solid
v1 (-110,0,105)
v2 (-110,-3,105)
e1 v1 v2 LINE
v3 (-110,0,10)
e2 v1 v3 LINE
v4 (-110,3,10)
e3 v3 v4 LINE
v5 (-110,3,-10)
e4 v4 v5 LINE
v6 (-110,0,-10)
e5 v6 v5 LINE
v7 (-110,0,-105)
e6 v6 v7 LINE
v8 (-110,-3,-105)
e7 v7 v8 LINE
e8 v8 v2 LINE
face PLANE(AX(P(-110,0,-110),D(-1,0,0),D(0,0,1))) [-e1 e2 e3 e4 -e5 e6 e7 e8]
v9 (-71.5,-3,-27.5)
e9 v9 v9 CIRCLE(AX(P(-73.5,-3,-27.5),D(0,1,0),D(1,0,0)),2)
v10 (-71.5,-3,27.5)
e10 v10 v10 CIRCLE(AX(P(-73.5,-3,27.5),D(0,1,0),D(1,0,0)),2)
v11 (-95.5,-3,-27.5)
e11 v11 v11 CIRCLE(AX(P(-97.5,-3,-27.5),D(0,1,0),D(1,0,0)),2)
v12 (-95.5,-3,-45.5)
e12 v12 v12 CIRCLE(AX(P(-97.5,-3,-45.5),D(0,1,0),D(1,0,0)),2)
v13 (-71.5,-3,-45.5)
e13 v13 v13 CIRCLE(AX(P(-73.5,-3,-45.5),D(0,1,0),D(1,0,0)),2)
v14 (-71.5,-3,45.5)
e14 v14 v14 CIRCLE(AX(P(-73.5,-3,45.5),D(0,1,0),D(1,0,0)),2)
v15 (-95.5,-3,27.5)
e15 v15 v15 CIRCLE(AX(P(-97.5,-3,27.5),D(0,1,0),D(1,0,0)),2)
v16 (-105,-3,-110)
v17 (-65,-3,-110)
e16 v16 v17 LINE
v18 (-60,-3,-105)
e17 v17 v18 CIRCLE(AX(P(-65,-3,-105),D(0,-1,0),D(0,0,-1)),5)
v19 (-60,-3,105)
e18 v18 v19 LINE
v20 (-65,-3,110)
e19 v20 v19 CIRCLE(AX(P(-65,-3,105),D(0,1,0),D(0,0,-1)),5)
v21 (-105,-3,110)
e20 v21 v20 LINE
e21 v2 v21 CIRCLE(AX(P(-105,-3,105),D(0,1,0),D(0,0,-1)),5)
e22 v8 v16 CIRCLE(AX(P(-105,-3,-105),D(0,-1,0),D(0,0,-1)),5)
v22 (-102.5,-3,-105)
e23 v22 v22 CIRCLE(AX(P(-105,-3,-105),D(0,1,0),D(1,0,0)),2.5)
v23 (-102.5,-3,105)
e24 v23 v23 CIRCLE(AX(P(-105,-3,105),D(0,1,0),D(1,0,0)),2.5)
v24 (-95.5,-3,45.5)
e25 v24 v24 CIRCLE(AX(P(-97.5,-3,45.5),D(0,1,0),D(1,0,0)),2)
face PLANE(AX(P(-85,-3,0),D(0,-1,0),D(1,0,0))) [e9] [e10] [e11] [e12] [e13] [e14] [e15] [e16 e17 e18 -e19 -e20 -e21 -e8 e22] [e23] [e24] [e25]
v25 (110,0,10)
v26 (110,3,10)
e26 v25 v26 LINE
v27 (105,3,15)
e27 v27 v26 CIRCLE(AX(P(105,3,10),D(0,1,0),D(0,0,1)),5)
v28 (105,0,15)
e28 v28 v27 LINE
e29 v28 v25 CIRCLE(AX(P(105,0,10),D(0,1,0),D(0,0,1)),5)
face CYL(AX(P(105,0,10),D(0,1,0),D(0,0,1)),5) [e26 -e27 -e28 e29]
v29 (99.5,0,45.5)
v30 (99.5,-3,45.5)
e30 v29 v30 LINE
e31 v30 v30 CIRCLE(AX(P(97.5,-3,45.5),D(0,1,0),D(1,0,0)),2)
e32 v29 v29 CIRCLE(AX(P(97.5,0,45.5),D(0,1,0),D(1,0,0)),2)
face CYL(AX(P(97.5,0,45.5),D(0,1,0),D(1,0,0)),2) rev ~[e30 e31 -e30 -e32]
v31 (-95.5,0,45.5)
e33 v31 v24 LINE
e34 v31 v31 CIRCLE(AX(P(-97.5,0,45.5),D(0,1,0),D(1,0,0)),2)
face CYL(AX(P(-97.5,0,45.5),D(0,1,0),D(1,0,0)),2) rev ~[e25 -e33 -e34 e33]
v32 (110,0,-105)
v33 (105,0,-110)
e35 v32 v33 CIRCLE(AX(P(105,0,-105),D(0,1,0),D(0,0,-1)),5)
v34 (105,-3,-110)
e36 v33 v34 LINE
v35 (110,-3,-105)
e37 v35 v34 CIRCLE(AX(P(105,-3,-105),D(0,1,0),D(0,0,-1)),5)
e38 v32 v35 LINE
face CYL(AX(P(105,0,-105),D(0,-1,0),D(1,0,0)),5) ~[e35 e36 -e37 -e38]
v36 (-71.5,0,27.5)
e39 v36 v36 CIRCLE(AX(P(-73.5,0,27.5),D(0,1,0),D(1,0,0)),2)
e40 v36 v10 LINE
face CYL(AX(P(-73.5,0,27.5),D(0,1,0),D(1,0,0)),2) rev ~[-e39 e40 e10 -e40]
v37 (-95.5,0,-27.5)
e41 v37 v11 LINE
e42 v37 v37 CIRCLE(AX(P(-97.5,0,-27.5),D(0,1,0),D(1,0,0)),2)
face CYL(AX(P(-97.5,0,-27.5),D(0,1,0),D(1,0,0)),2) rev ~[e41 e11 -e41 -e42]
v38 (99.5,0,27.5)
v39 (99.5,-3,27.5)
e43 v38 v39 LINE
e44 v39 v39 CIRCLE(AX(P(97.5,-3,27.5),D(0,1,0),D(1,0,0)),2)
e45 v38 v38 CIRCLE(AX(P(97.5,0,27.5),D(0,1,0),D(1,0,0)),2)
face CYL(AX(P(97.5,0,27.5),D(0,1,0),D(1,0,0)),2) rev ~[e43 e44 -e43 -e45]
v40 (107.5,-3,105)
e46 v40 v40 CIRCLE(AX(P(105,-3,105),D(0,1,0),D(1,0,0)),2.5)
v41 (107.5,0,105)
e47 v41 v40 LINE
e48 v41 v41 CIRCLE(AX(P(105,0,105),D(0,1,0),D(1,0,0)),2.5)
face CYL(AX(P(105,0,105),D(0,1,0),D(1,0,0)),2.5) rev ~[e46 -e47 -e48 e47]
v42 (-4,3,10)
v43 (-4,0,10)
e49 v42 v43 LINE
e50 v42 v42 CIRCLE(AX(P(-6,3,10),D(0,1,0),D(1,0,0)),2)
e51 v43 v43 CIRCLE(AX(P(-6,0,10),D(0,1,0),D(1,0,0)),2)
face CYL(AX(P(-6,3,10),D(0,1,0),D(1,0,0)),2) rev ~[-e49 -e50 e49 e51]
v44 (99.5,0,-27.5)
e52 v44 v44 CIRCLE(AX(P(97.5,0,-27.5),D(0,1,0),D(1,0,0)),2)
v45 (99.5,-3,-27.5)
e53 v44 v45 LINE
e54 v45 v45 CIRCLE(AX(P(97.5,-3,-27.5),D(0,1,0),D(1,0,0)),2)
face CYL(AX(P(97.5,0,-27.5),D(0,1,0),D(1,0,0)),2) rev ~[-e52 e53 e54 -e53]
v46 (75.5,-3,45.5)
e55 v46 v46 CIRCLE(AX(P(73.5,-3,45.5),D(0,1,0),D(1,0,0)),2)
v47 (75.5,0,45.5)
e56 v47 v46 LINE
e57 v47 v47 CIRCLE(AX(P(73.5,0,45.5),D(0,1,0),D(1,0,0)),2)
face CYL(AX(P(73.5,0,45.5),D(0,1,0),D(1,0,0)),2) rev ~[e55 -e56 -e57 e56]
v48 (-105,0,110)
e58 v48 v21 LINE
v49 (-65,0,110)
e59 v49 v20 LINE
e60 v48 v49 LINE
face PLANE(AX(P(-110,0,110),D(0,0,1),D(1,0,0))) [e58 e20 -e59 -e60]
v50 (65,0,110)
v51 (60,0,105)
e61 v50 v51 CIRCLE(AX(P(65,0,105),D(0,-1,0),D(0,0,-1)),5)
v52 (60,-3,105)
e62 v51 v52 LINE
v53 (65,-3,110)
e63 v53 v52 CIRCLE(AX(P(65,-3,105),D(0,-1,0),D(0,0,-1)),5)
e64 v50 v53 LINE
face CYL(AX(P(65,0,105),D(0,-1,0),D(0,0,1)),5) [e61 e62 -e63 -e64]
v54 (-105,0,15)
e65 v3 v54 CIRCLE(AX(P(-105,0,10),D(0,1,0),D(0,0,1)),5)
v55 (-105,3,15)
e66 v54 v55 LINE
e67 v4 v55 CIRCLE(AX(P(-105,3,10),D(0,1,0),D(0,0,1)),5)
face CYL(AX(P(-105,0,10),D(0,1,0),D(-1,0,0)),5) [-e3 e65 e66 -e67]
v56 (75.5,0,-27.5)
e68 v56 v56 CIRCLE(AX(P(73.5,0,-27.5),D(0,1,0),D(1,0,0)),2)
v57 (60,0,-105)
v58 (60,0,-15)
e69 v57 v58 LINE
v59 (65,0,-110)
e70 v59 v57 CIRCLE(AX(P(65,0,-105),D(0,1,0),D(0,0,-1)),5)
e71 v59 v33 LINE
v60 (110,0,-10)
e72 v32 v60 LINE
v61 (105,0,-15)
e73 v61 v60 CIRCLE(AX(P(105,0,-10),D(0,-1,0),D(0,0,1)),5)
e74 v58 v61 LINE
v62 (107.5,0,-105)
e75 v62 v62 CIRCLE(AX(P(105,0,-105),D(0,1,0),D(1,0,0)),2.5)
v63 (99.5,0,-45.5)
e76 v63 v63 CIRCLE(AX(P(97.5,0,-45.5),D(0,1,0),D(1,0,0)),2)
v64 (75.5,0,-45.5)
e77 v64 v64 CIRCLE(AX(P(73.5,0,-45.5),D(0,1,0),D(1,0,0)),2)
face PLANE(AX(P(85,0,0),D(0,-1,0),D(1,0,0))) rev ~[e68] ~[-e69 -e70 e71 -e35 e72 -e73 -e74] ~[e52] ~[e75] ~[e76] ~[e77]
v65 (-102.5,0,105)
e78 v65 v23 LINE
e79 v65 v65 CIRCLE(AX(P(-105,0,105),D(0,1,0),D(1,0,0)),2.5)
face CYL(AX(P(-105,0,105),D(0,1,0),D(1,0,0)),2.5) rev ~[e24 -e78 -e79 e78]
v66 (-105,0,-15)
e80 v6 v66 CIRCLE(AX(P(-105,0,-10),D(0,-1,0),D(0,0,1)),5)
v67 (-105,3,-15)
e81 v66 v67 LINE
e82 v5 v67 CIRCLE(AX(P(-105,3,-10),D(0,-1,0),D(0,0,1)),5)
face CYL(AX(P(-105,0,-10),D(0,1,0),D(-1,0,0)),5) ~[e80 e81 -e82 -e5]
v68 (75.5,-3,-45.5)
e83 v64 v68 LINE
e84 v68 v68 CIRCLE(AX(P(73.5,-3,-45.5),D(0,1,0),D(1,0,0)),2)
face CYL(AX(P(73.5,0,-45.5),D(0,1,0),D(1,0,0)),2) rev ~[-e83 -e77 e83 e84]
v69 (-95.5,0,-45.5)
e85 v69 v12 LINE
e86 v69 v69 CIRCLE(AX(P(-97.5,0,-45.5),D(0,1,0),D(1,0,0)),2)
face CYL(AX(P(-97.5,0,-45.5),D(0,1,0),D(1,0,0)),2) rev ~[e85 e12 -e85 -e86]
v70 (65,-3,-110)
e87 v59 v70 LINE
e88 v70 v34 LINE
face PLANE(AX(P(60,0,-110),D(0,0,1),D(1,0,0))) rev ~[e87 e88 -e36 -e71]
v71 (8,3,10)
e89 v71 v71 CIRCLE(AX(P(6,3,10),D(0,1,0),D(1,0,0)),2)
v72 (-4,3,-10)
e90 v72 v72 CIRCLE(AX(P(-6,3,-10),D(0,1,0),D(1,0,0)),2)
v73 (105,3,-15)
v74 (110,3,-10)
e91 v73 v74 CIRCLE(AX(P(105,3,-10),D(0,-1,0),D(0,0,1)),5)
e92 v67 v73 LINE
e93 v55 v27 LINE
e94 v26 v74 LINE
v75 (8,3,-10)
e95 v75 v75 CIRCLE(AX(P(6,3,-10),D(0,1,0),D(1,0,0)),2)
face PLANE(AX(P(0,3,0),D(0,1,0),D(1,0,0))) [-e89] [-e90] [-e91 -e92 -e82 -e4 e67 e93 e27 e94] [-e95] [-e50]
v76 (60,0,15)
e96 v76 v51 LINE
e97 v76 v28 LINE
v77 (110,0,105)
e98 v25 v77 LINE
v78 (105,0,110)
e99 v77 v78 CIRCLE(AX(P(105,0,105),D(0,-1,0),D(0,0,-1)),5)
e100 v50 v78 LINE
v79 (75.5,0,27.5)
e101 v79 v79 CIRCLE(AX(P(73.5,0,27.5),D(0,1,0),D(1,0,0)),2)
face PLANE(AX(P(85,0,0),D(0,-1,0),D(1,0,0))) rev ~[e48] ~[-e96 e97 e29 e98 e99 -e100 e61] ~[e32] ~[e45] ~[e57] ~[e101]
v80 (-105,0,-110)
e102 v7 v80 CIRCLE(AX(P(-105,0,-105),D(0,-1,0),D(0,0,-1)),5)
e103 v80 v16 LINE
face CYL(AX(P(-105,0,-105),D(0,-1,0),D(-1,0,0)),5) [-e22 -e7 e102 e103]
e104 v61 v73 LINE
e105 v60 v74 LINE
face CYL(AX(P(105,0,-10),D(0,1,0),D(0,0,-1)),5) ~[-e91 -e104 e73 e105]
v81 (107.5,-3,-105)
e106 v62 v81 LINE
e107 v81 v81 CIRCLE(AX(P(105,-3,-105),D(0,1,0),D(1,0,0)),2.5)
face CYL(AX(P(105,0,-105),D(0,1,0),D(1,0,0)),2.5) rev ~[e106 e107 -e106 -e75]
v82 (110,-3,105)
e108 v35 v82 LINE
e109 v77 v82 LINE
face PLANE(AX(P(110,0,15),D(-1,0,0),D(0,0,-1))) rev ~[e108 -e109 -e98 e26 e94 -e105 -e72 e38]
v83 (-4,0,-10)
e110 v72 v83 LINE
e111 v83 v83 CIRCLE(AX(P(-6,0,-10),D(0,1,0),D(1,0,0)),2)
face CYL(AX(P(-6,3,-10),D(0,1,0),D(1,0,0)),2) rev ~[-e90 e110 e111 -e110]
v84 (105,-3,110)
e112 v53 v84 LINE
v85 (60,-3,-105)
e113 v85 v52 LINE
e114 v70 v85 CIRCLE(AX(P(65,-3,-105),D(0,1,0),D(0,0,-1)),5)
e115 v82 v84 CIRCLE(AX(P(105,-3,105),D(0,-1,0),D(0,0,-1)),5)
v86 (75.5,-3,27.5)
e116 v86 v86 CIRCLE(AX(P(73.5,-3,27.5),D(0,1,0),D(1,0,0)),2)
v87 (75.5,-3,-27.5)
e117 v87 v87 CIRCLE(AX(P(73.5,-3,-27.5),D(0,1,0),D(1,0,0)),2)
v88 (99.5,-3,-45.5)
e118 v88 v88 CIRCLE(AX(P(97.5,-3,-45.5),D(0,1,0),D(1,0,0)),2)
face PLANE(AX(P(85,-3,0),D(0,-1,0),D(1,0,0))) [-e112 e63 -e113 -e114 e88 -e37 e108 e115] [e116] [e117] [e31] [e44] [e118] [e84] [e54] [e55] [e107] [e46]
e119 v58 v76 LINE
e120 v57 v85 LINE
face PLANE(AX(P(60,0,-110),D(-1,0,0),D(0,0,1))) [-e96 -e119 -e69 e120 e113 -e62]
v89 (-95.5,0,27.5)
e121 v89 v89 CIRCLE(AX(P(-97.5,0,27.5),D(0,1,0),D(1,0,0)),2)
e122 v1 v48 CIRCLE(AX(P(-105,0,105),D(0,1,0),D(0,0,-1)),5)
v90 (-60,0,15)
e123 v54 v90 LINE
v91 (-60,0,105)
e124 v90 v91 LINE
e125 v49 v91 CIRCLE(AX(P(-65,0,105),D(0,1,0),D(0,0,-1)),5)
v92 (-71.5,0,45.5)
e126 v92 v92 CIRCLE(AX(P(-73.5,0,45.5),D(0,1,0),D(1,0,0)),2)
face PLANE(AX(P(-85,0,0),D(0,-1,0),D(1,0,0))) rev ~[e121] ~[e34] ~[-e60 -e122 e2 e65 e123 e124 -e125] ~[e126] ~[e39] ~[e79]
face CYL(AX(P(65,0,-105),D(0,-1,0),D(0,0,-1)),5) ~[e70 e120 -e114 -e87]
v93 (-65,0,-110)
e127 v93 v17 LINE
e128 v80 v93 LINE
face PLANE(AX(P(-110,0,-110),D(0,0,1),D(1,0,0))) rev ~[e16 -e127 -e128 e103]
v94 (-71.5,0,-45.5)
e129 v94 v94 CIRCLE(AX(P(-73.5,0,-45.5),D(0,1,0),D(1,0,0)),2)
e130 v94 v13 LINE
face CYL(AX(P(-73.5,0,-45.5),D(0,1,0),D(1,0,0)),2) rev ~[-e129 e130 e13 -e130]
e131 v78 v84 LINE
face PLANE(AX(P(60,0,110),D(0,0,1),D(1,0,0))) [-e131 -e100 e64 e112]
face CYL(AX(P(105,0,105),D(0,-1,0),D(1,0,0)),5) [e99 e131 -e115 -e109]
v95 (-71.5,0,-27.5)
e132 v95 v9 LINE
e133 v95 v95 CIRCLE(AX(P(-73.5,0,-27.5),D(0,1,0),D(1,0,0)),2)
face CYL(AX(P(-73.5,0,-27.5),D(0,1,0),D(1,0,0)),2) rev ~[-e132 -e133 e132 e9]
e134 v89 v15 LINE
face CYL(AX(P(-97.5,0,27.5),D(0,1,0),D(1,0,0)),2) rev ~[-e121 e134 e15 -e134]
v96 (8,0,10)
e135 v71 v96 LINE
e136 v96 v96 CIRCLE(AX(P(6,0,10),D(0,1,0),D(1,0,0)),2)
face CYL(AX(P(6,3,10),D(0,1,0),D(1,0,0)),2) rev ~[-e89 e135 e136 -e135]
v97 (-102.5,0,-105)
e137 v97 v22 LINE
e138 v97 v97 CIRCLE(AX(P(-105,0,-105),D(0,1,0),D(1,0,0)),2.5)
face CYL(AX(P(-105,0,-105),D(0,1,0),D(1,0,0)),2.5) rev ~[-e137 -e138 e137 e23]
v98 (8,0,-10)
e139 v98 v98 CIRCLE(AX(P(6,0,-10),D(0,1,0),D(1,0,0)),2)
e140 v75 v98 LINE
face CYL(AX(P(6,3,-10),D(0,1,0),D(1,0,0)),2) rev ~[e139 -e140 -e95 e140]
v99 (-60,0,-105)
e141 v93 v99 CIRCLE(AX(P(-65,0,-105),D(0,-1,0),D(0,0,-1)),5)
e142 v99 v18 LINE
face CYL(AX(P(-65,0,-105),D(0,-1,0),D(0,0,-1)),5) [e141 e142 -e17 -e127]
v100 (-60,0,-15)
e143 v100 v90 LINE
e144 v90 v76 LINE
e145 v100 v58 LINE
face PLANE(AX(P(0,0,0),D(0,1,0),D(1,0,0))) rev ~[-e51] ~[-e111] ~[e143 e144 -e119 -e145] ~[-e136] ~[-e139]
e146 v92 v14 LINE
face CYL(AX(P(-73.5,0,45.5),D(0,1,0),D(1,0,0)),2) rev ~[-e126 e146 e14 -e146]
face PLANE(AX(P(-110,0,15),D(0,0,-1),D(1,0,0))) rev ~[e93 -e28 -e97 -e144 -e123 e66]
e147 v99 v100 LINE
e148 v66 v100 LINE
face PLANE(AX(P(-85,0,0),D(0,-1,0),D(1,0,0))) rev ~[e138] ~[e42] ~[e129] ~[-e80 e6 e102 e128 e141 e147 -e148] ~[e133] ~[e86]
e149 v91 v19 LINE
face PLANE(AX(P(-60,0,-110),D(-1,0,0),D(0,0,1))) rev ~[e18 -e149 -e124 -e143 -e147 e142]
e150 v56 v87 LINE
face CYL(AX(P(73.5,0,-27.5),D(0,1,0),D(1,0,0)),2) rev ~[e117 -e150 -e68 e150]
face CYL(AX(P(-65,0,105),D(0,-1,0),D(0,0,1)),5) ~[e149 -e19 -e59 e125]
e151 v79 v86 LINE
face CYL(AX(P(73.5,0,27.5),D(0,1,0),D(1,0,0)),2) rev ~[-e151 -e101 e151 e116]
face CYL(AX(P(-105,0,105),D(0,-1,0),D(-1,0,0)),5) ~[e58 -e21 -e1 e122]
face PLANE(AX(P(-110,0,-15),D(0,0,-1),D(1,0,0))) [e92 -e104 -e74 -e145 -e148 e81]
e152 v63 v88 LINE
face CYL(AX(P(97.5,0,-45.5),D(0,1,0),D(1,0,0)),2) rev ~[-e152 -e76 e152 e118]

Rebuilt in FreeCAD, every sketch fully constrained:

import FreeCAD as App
import Part
import Sketcher


def edges_at(feature, points):
    """Names of the edges that pass closest to the given points."""
    edges = feature.Shape.Edges
    near = lambda p: min(range(len(edges)), key=lambda i: edges[i].distToShape(Part.Vertex(*p))[0])
    return sorted({f"Edge{near(p) + 1}" for p in points})


def add_polygon(sketch, points):
    """Adds a closed chain of lines whose ends are joined by coincident constraints."""
    first, n = sketch.GeometryCount, len(points)
    for a, b in zip(points, points[1:] + points[:1]):
        sketch.addGeometry(Part.LineSegment(App.Vector(*a, 0), App.Vector(*b, 0)), False)
    for i in range(n):
        sketch.addConstraint(Sketcher.Constraint("Coincident", first + i, 2, first + (i + 1) % n, 1))

doc = App.newDocument("Part")
body = doc.addObject("PartDesign::Body", "Body")

# Sketch on XZ plane
sketch1 = body.newObject("Sketcher::SketchObject", "Sketch")
sketch1.AttachmentSupport = (doc.getObject("XZ_Plane"), [""])
sketch1.MapMode = "FlatFace"
add_polygon(sketch1, [(-110, -15), (-110, 15), (110, 15), (110, -15)])  # lines 0-3
sketch1.addConstraint(Sketcher.Constraint("Vertical", 0))
sketch1.addConstraint(Sketcher.Constraint("Horizontal", 1))
sketch1.addConstraint(Sketcher.Constraint("Vertical", 2))
sketch1.addConstraint(Sketcher.Constraint("Horizontal", 3))
sketch1.addConstraint(Sketcher.Constraint("Symmetric", 0, 2, 2, 2, -1, 1))
sketch1.addConstraint(Sketcher.Constraint("DistanceX", 1, 1, 1, 2, 220.0))
sketch1.addConstraint(Sketcher.Constraint("DistanceY", 0, 1, 0, 2, 30.0))
pad1 = body.newObject("PartDesign::Pad", "Pad")
pad1.Profile = sketch1
pad1.Length = 3
pad1.Reversed = True

# Sketch on XZ plane
sketch2 = body.newObject("Sketcher::SketchObject", "Sketch001")
sketch2.AttachmentSupport = (doc.getObject("XZ_Plane"), [""])
sketch2.MapMode = "FlatFace"
add_polygon(sketch2, [(-110, 110), (-110, -110), (-60, -110), (-60, 110)])  # lines 0-3
add_polygon(sketch2, [(60, 110), (60, -110), (110, -110), (110, 110)])  # lines 4-7
sketch2.addConstraint(Sketcher.Constraint("Vertical", 0))
sketch2.addConstraint(Sketcher.Constraint("Horizontal", 1))
sketch2.addConstraint(Sketcher.Constraint("Vertical", 2))
sketch2.addConstraint(Sketcher.Constraint("Horizontal", 3))
sketch2.addConstraint(Sketcher.Constraint("Vertical", 4))
sketch2.addConstraint(Sketcher.Constraint("Horizontal", 5))
sketch2.addConstraint(Sketcher.Constraint("Vertical", 6))
sketch2.addConstraint(Sketcher.Constraint("Horizontal", 7))
sketch2.addConstraint(Sketcher.Constraint("Symmetric", 2, 2, 4, 2, -1, 1))
sketch2.addConstraint(Sketcher.Constraint("Symmetric", 0, 2, 6, 2, -1, 1))
sketch2.addConstraint(Sketcher.Constraint("Horizontal", 1, 2, 4, 2))
sketch2.addConstraint(Sketcher.Constraint("DistanceX", 1, 1, 1, 2, 50.0))
sketch2.addConstraint(Sketcher.Constraint("DistanceY", 0, 2, 0, 1, 220.0))
sketch2.addConstraint(Sketcher.Constraint("DistanceX", 0, 2, -1, 1, 110.0))
pad2 = body.newObject("PartDesign::Pad", "Pad001")
pad2.Profile = sketch2
pad2.Length = 3

# Sketch on XZ plane
sketch3 = body.newObject("Sketcher::SketchObject", "Sketch002")
sketch3.AttachmentSupport = (doc.getObject("XZ_Plane"), [""])
sketch3.MapMode = "FlatFace"
sketch3.addGeometry(Part.Circle(App.Vector(-105, -105, 0), App.Vector(0, 0, 1), 2.5), False)
sketch3.addGeometry(Part.Circle(App.Vector(105, -105, 0), App.Vector(0, 0, 1), 2.5), False)
sketch3.addGeometry(Part.Circle(App.Vector(105, 105, 0), App.Vector(0, 0, 1), 2.5), False)
sketch3.addGeometry(Part.Circle(App.Vector(-105, 105, 0), App.Vector(0, 0, 1), 2.5), False)
sketch3.addConstraint(Sketcher.Constraint("Equal", 0, 1))
sketch3.addConstraint(Sketcher.Constraint("Equal", 1, 2))
sketch3.addConstraint(Sketcher.Constraint("Equal", 2, 3))
sketch3.addConstraint(Sketcher.Constraint("Symmetric", 0, 3, 2, 3, -1, 1))
sketch3.addConstraint(Sketcher.Constraint("Symmetric", 1, 3, 3, 3, -1, 1))
sketch3.addConstraint(Sketcher.Constraint("Symmetric", 0, 3, 1, 3, -2))
sketch3.addConstraint(Sketcher.Constraint("Diameter", 0, 5.0))
sketch3.addConstraint(Sketcher.Constraint("DistanceX", 0, 3, -1, 1, 105.0))
sketch3.addConstraint(Sketcher.Constraint("DistanceY", 0, 3, -1, 1, 105.0))
pocket1 = body.newObject("PartDesign::Pocket", "Pocket")
pocket1.Profile = sketch3
pocket1.Length = 3
pocket1.Reversed = True
doc.recompute()

fillet = body.newObject("PartDesign::Fillet", "Fillet")
fillet.Base = (pocket1, edges_at(pocket1, [
    (-60, -1.5, -110),
    (-60, -1.5, 110),
    (-110, -1.5, 110),
    (-110, -1.5, -110),
    (110, -1.5, -110),
    (110, -1.5, 110),
    (60, -1.5, 110),
    (60, -1.5, -110),
    (110, 1.5, 15),
    (-110, 1.5, 15),
    (-110, 1.5, -15),
    (110, 1.5, -15),
]))
fillet.Radius = 5

# Sketch on XZ plane
sketch4 = body.newObject("Sketcher::SketchObject", "Sketch003")
sketch4.AttachmentSupport = (doc.getObject("XZ_Plane"), [""])
sketch4.MapMode = "FlatFace"
sketch4.addGeometry(Part.Circle(App.Vector(-97.5, -27.5, 0), App.Vector(0, 0, 1), 2), False)
sketch4.addConstraint(Sketcher.Constraint("Diameter", 0, 4.0))
sketch4.addConstraint(Sketcher.Constraint("DistanceX", 0, 3, -1, 1, 97.5))
sketch4.addConstraint(Sketcher.Constraint("DistanceY", 0, 3, -1, 1, 27.5))
pocket2 = body.newObject("PartDesign::Pocket", "Pocket001")
pocket2.Profile = sketch4
pocket2.Type = "UpToFirst"
pocket2.Reversed = True

# Sketch on XZ plane
sketch5 = body.newObject("Sketcher::SketchObject", "Sketch004")
sketch5.AttachmentSupport = (doc.getObject("XZ_Plane"), [""])
sketch5.MapMode = "FlatFace"
sketch5.addGeometry(Part.Circle(App.Vector(-73.5, -27.5, 0), App.Vector(0, 0, 1), 2), False)
sketch5.addConstraint(Sketcher.Constraint("Diameter", 0, 4.0))
sketch5.addConstraint(Sketcher.Constraint("DistanceX", 0, 3, -1, 1, 73.5))
sketch5.addConstraint(Sketcher.Constraint("DistanceY", 0, 3, -1, 1, 27.5))
pocket3 = body.newObject("PartDesign::Pocket", "Pocket002")
pocket3.Profile = sketch5
pocket3.Type = "UpToFirst"
pocket3.Reversed = True

# Sketch on XZ plane
sketch6 = body.newObject("Sketcher::SketchObject", "Sketch005")
sketch6.AttachmentSupport = (doc.getObject("XZ_Plane"), [""])
sketch6.MapMode = "FlatFace"
sketch6.addGeometry(Part.Circle(App.Vector(-73.5, -45.5, 0), App.Vector(0, 0, 1), 2), False)
sketch6.addConstraint(Sketcher.Constraint("Diameter", 0, 4.0))
sketch6.addConstraint(Sketcher.Constraint("DistanceX", 0, 3, -1, 1, 73.5))
sketch6.addConstraint(Sketcher.Constraint("DistanceY", 0, 3, -1, 1, 45.5))
pocket4 = body.newObject("PartDesign::Pocket", "Pocket003")
pocket4.Profile = sketch6
pocket4.Type = "UpToFirst"
pocket4.Reversed = True

# Sketch on XZ plane
sketch7 = body.newObject("Sketcher::SketchObject", "Sketch006")
sketch7.AttachmentSupport = (doc.getObject("XZ_Plane"), [""])
sketch7.MapMode = "FlatFace"
sketch7.addGeometry(Part.Circle(App.Vector(-97.5, -45.5, 0), App.Vector(0, 0, 1), 2), False)
sketch7.addConstraint(Sketcher.Constraint("Diameter", 0, 4.0))
sketch7.addConstraint(Sketcher.Constraint("DistanceX", 0, 3, -1, 1, 97.5))
sketch7.addConstraint(Sketcher.Constraint("DistanceY", 0, 3, -1, 1, 45.5))
pocket5 = body.newObject("PartDesign::Pocket", "Pocket004")
pocket5.Profile = sketch7
pocket5.Type = "UpToFirst"
pocket5.Reversed = True

# Sketch on XZ plane
sketch8 = body.newObject("Sketcher::SketchObject", "Sketch007")
sketch8.AttachmentSupport = (doc.getObject("XZ_Plane"), [""])
sketch8.MapMode = "FlatFace"
sketch8.addGeometry(Part.Circle(App.Vector(97.5, -45.5, 0), App.Vector(0, 0, 1), 2), False)
sketch8.addConstraint(Sketcher.Constraint("Diameter", 0, 4.0))
sketch8.addConstraint(Sketcher.Constraint("DistanceX", -1, 1, 0, 3, 97.5))
sketch8.addConstraint(Sketcher.Constraint("DistanceY", 0, 3, -1, 1, 45.5))
pocket6 = body.newObject("PartDesign::Pocket", "Pocket005")
pocket6.Profile = sketch8
pocket6.Type = "UpToFirst"
pocket6.Reversed = True

# Sketch on XZ plane
sketch9 = body.newObject("Sketcher::SketchObject", "Sketch008")
sketch9.AttachmentSupport = (doc.getObject("XZ_Plane"), [""])
sketch9.MapMode = "FlatFace"
sketch9.addGeometry(Part.Circle(App.Vector(73.5, -45.5, 0), App.Vector(0, 0, 1), 2), False)
sketch9.addConstraint(Sketcher.Constraint("Diameter", 0, 4.0))
sketch9.addConstraint(Sketcher.Constraint("DistanceX", -1, 1, 0, 3, 73.5))
sketch9.addConstraint(Sketcher.Constraint("DistanceY", 0, 3, -1, 1, 45.5))
pocket7 = body.newObject("PartDesign::Pocket", "Pocket006")
pocket7.Profile = sketch9
pocket7.Type = "UpToFirst"
pocket7.Reversed = True

# Sketch on XZ plane
sketch10 = body.newObject("Sketcher::SketchObject", "Sketch009")
sketch10.AttachmentSupport = (doc.getObject("XZ_Plane"), [""])
sketch10.MapMode = "FlatFace"
sketch10.addGeometry(Part.Circle(App.Vector(73.5, -27.5, 0), App.Vector(0, 0, 1), 2), False)
sketch10.addConstraint(Sketcher.Constraint("Diameter", 0, 4.0))
sketch10.addConstraint(Sketcher.Constraint("DistanceX", -1, 1, 0, 3, 73.5))
sketch10.addConstraint(Sketcher.Constraint("DistanceY", 0, 3, -1, 1, 27.5))
pocket8 = body.newObject("PartDesign::Pocket", "Pocket007")
pocket8.Profile = sketch10
pocket8.Type = "UpToFirst"
pocket8.Reversed = True

# Sketch on XZ plane
sketch11 = body.newObject("Sketcher::SketchObject", "Sketch010")
sketch11.AttachmentSupport = (doc.getObject("XZ_Plane"), [""])
sketch11.MapMode = "FlatFace"
sketch11.addGeometry(Part.Circle(App.Vector(97.5, -27.5, 0), App.Vector(0, 0, 1), 2), False)
sketch11.addConstraint(Sketcher.Constraint("Diameter", 0, 4.0))
sketch11.addConstraint(Sketcher.Constraint("DistanceX", -1, 1, 0, 3, 97.5))
sketch11.addConstraint(Sketcher.Constraint("DistanceY", 0, 3, -1, 1, 27.5))
pocket9 = body.newObject("PartDesign::Pocket", "Pocket008")
pocket9.Profile = sketch11
pocket9.Type = "UpToFirst"
pocket9.Reversed = True

# Sketch on XZ plane
sketch12 = body.newObject("Sketcher::SketchObject", "Sketch011")
sketch12.AttachmentSupport = (doc.getObject("XZ_Plane"), [""])
sketch12.MapMode = "FlatFace"
sketch12.addGeometry(Part.Circle(App.Vector(97.5, 27.5, 0), App.Vector(0, 0, 1), 2), False)
sketch12.addConstraint(Sketcher.Constraint("Diameter", 0, 4.0))
sketch12.addConstraint(Sketcher.Constraint("DistanceX", -1, 1, 0, 3, 97.5))
sketch12.addConstraint(Sketcher.Constraint("DistanceY", -1, 1, 0, 3, 27.5))
pocket10 = body.newObject("PartDesign::Pocket", "Pocket009")
pocket10.Profile = sketch12
pocket10.Type = "UpToFirst"
pocket10.Reversed = True

# Sketch on XZ plane
sketch13 = body.newObject("Sketcher::SketchObject", "Sketch012")
sketch13.AttachmentSupport = (doc.getObject("XZ_Plane"), [""])
sketch13.MapMode = "FlatFace"
sketch13.addGeometry(Part.Circle(App.Vector(73.5, 27.5, 0), App.Vector(0, 0, 1), 2), False)
sketch13.addConstraint(Sketcher.Constraint("Diameter", 0, 4.0))
sketch13.addConstraint(Sketcher.Constraint("DistanceX", -1, 1, 0, 3, 73.5))
sketch13.addConstraint(Sketcher.Constraint("DistanceY", -1, 1, 0, 3, 27.5))
pocket11 = body.newObject("PartDesign::Pocket", "Pocket010")
pocket11.Profile = sketch13
pocket11.Type = "UpToFirst"
pocket11.Reversed = True

# Sketch on XZ plane
sketch14 = body.newObject("Sketcher::SketchObject", "Sketch013")
sketch14.AttachmentSupport = (doc.getObject("XZ_Plane"), [""])
sketch14.MapMode = "FlatFace"
sketch14.addGeometry(Part.Circle(App.Vector(73.5, 45.5, 0), App.Vector(0, 0, 1), 2), False)
sketch14.addConstraint(Sketcher.Constraint("Diameter", 0, 4.0))
sketch14.addConstraint(Sketcher.Constraint("DistanceX", -1, 1, 0, 3, 73.5))
sketch14.addConstraint(Sketcher.Constraint("DistanceY", -1, 1, 0, 3, 45.5))
pocket12 = body.newObject("PartDesign::Pocket", "Pocket011")
pocket12.Profile = sketch14
pocket12.Type = "UpToFirst"
pocket12.Reversed = True

# Sketch on XZ plane
sketch15 = body.newObject("Sketcher::SketchObject", "Sketch014")
sketch15.AttachmentSupport = (doc.getObject("XZ_Plane"), [""])
sketch15.MapMode = "FlatFace"
sketch15.addGeometry(Part.Circle(App.Vector(97.5, 45.5, 0), App.Vector(0, 0, 1), 2), False)
sketch15.addConstraint(Sketcher.Constraint("Diameter", 0, 4.0))
sketch15.addConstraint(Sketcher.Constraint("DistanceX", -1, 1, 0, 3, 97.5))
sketch15.addConstraint(Sketcher.Constraint("DistanceY", -1, 1, 0, 3, 45.5))
pocket13 = body.newObject("PartDesign::Pocket", "Pocket012")
pocket13.Profile = sketch15
pocket13.Type = "UpToFirst"
pocket13.Reversed = True

# Sketch on XZ plane
sketch16 = body.newObject("Sketcher::SketchObject", "Sketch015")
sketch16.AttachmentSupport = (doc.getObject("XZ_Plane"), [""])
sketch16.MapMode = "FlatFace"
sketch16.addGeometry(Part.Circle(App.Vector(-97.5, 45.5, 0), App.Vector(0, 0, 1), 2), False)
sketch16.addConstraint(Sketcher.Constraint("Diameter", 0, 4.0))
sketch16.addConstraint(Sketcher.Constraint("DistanceX", 0, 3, -1, 1, 97.5))
sketch16.addConstraint(Sketcher.Constraint("DistanceY", -1, 1, 0, 3, 45.5))
pocket14 = body.newObject("PartDesign::Pocket", "Pocket013")
pocket14.Profile = sketch16
pocket14.Type = "UpToFirst"
pocket14.Reversed = True

# Sketch on XZ plane
sketch17 = body.newObject("Sketcher::SketchObject", "Sketch016")
sketch17.AttachmentSupport = (doc.getObject("XZ_Plane"), [""])
sketch17.MapMode = "FlatFace"
sketch17.addGeometry(Part.Circle(App.Vector(-73.5, 45.5, 0), App.Vector(0, 0, 1), 2), False)
sketch17.addConstraint(Sketcher.Constraint("Diameter", 0, 4.0))
sketch17.addConstraint(Sketcher.Constraint("DistanceX", 0, 3, -1, 1, 73.5))
sketch17.addConstraint(Sketcher.Constraint("DistanceY", -1, 1, 0, 3, 45.5))
pocket15 = body.newObject("PartDesign::Pocket", "Pocket014")
pocket15.Profile = sketch17
pocket15.Type = "UpToFirst"
pocket15.Reversed = True

# Sketch on XZ plane
sketch18 = body.newObject("Sketcher::SketchObject", "Sketch017")
sketch18.AttachmentSupport = (doc.getObject("XZ_Plane"), [""])
sketch18.MapMode = "FlatFace"
sketch18.addGeometry(Part.Circle(App.Vector(-73.5, 27.5, 0), App.Vector(0, 0, 1), 2), False)
sketch18.addConstraint(Sketcher.Constraint("Diameter", 0, 4.0))
sketch18.addConstraint(Sketcher.Constraint("DistanceX", 0, 3, -1, 1, 73.5))
sketch18.addConstraint(Sketcher.Constraint("DistanceY", -1, 1, 0, 3, 27.5))
pocket16 = body.newObject("PartDesign::Pocket", "Pocket015")
pocket16.Profile = sketch18
pocket16.Type = "UpToFirst"
pocket16.Reversed = True

# Sketch on XZ plane
sketch19 = body.newObject("Sketcher::SketchObject", "Sketch018")
sketch19.AttachmentSupport = (doc.getObject("XZ_Plane"), [""])
sketch19.MapMode = "FlatFace"
sketch19.addGeometry(Part.Circle(App.Vector(-97.5, 27.5, 0), App.Vector(0, 0, 1), 2), False)
sketch19.addConstraint(Sketcher.Constraint("Diameter", 0, 4.0))
sketch19.addConstraint(Sketcher.Constraint("DistanceX", 0, 3, -1, 1, 97.5))
sketch19.addConstraint(Sketcher.Constraint("DistanceY", -1, 1, 0, 3, 27.5))
pocket17 = body.newObject("PartDesign::Pocket", "Pocket016")
pocket17.Profile = sketch19
pocket17.Type = "UpToFirst"
pocket17.Reversed = True

# Sketch on XZ plane
sketch20 = body.newObject("Sketcher::SketchObject", "Sketch019")
sketch20.AttachmentSupport = (doc.getObject("XZ_Plane"), [""])
sketch20.MapMode = "FlatFace"
sketch20.AttachmentOffset = App.Placement(App.Vector(0, 0, -3), App.Rotation())
sketch20.addGeometry(Part.Circle(App.Vector(-6, -10, 0), App.Vector(0, 0, 1), 2), False)
sketch20.addConstraint(Sketcher.Constraint("Diameter", 0, 4.0))
sketch20.addConstraint(Sketcher.Constraint("DistanceX", 0, 3, -1, 1, 6.0))
sketch20.addConstraint(Sketcher.Constraint("DistanceY", 0, 3, -1, 1, 10.0))
pocket18 = body.newObject("PartDesign::Pocket", "Pocket017")
pocket18.Profile = sketch20
pocket18.Type = "UpToFirst"
pocket18.Reversed = True

# Sketch on XZ plane
sketch21 = body.newObject("Sketcher::SketchObject", "Sketch020")
sketch21.AttachmentSupport = (doc.getObject("XZ_Plane"), [""])
sketch21.MapMode = "FlatFace"
sketch21.AttachmentOffset = App.Placement(App.Vector(0, 0, -3), App.Rotation())
sketch21.addGeometry(Part.Circle(App.Vector(6, -10, 0), App.Vector(0, 0, 1), 2), False)
sketch21.addConstraint(Sketcher.Constraint("Diameter", 0, 4.0))
sketch21.addConstraint(Sketcher.Constraint("DistanceX", -1, 1, 0, 3, 6.0))
sketch21.addConstraint(Sketcher.Constraint("DistanceY", 0, 3, -1, 1, 10.0))
pocket19 = body.newObject("PartDesign::Pocket", "Pocket018")
pocket19.Profile = sketch21
pocket19.Type = "UpToFirst"
pocket19.Reversed = True

# Sketch on XZ plane
sketch22 = body.newObject("Sketcher::SketchObject", "Sketch021")
sketch22.AttachmentSupport = (doc.getObject("XZ_Plane"), [""])
sketch22.MapMode = "FlatFace"
sketch22.AttachmentOffset = App.Placement(App.Vector(0, 0, -3), App.Rotation())
sketch22.addGeometry(Part.Circle(App.Vector(6, 10, 0), App.Vector(0, 0, 1), 2), False)
sketch22.addConstraint(Sketcher.Constraint("Diameter", 0, 4.0))
sketch22.addConstraint(Sketcher.Constraint("DistanceX", -1, 1, 0, 3, 6.0))
sketch22.addConstraint(Sketcher.Constraint("DistanceY", -1, 1, 0, 3, 10.0))
pocket20 = body.newObject("PartDesign::Pocket", "Pocket019")
pocket20.Profile = sketch22
pocket20.Type = "UpToFirst"
pocket20.Reversed = True

# Sketch on XZ plane
sketch23 = body.newObject("Sketcher::SketchObject", "Sketch022")
sketch23.AttachmentSupport = (doc.getObject("XZ_Plane"), [""])
sketch23.MapMode = "FlatFace"
sketch23.AttachmentOffset = App.Placement(App.Vector(0, 0, -3), App.Rotation())
sketch23.addGeometry(Part.Circle(App.Vector(-6, 10, 0), App.Vector(0, 0, 1), 2), False)
sketch23.addConstraint(Sketcher.Constraint("Diameter", 0, 4.0))
sketch23.addConstraint(Sketcher.Constraint("DistanceX", 0, 3, -1, 1, 6.0))
sketch23.addConstraint(Sketcher.Constraint("DistanceY", -1, 1, 0, 3, 10.0))
pocket21 = body.newObject("PartDesign::Pocket", "Pocket020")
pocket21.Profile = sketch23
pocket21.Type = "UpToFirst"
pocket21.Reversed = True

doc.recompute()
